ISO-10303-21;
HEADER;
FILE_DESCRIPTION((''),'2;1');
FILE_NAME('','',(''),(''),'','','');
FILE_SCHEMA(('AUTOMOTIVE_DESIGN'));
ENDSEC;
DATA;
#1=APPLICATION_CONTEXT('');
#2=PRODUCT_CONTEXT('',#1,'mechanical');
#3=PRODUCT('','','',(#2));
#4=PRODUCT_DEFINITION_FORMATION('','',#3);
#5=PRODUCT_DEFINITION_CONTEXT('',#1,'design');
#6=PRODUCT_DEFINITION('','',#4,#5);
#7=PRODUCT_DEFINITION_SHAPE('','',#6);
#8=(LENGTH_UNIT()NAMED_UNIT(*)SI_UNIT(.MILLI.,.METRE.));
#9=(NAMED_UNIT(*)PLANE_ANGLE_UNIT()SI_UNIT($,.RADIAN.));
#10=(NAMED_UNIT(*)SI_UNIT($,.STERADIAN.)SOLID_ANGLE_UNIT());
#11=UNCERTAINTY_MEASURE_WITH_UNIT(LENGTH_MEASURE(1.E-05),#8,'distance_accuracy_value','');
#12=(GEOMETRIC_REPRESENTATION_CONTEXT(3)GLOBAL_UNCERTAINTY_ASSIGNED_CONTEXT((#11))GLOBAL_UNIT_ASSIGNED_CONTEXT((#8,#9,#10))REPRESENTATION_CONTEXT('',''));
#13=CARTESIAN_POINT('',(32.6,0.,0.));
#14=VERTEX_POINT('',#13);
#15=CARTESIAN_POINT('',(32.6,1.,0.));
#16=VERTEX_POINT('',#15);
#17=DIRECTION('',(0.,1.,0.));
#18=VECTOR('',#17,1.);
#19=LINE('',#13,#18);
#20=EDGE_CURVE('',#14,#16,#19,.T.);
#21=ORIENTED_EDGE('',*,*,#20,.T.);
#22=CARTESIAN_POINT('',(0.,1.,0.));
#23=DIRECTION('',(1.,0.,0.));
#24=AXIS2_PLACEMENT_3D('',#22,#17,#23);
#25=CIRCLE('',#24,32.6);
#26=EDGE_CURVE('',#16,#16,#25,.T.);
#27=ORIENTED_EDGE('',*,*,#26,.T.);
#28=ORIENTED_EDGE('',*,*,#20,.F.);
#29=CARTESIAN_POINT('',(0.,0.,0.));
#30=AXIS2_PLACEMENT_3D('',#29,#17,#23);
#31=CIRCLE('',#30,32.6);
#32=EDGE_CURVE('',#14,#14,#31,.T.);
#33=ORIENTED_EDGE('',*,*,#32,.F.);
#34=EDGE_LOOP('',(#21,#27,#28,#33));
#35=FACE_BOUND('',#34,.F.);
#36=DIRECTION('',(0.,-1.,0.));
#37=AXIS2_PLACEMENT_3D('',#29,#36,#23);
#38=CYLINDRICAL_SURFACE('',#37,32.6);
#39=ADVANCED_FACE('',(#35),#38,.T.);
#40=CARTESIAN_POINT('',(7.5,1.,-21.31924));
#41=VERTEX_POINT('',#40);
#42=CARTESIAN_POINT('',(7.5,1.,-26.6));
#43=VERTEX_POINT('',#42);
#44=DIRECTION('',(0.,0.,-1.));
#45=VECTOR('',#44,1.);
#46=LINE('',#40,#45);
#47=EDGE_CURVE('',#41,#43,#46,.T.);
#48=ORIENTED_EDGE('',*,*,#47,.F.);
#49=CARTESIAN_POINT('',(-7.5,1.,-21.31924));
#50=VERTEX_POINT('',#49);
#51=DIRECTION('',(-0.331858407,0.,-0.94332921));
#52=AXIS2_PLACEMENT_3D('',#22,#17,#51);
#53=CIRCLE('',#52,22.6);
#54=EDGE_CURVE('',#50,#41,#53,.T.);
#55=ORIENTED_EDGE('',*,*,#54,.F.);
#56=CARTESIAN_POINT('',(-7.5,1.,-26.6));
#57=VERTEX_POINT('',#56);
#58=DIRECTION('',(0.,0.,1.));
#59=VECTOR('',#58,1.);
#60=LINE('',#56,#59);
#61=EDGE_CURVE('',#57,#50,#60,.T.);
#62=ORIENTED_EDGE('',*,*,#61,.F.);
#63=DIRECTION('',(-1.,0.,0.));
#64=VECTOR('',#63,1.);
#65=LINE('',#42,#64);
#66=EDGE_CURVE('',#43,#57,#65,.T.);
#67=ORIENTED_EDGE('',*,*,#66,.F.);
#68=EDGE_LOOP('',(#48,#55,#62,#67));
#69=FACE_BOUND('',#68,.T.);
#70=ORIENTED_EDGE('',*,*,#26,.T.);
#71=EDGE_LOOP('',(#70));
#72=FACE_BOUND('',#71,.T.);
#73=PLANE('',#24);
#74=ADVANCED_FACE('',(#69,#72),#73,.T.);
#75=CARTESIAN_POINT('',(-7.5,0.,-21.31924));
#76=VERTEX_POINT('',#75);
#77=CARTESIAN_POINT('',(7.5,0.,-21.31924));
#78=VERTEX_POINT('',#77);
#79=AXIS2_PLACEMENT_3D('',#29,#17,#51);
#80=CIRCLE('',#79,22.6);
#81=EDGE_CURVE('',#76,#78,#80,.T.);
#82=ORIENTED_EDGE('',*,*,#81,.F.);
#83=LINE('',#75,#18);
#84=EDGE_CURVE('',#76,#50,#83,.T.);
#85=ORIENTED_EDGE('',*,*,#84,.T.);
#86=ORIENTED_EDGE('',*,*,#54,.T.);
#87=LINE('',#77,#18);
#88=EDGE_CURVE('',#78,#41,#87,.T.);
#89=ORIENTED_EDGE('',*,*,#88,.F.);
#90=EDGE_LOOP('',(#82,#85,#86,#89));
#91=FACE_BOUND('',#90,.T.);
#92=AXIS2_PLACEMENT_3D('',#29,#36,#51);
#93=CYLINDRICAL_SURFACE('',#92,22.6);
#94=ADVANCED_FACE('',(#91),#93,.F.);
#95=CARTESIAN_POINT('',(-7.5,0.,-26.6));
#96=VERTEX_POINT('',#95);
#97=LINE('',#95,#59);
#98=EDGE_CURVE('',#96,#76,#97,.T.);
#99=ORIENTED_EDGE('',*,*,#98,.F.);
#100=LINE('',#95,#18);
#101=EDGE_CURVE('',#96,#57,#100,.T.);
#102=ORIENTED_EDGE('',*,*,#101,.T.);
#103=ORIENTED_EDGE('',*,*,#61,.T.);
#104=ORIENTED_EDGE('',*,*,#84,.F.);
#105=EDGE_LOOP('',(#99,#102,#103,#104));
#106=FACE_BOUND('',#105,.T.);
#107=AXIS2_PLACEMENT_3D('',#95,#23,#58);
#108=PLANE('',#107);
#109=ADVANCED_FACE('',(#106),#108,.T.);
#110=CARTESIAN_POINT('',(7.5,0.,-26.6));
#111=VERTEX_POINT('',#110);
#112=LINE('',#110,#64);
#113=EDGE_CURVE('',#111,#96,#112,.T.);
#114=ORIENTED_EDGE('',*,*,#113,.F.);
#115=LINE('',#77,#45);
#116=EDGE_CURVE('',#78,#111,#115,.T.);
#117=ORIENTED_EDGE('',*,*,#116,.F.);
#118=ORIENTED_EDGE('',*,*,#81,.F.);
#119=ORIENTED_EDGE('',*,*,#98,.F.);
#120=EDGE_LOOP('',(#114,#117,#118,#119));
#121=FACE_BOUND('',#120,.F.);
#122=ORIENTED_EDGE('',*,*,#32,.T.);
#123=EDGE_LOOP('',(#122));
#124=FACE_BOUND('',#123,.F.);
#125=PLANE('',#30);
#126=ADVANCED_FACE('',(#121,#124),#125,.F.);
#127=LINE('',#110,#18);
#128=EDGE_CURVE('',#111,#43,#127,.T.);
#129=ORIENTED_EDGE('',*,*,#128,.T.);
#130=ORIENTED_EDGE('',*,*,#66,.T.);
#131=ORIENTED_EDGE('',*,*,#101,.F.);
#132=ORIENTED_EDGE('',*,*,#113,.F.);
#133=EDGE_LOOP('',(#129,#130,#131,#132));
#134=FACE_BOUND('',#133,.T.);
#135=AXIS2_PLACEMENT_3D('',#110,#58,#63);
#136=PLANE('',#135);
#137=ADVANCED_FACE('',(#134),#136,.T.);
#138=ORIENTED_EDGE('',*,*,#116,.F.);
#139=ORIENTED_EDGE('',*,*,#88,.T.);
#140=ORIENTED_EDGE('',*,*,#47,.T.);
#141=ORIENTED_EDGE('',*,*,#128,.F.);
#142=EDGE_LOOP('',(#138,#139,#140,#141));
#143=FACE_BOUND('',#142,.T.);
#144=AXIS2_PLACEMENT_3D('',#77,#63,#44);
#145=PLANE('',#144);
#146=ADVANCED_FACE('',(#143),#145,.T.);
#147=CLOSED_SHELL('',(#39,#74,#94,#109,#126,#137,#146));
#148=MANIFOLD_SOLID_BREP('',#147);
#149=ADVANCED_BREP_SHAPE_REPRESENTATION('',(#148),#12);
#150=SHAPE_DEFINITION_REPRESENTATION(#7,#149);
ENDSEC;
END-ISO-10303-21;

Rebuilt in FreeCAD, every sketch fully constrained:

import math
import FreeCAD as App
import Part
import Sketcher
from FreeCAD import Vector

doc = App.newDocument("Part")
body = doc.addObject("PartDesign::Body", "Body")

sketch1 = body.newObject("Sketcher::SketchObject", "Sketch")
sketch1.AttachmentSupport = (doc.getObject("XZ_Plane"), [""])
sketch1.MapMode = "FlatFace"
sketch1.addGeometry([
    Part.Circle(Vector(0, 0, 0), Vector(0, 0, 1), 33),
    Part.LineSegment(Vector(-8, -21, 0), Vector(-8, -27, 0)),
    Part.LineSegment(Vector(-8, -27, 0), Vector(8, -27, 0)),
    Part.LineSegment(Vector(8, -27, 0), Vector(8, -21, 0)),
    Part.ArcOfCircle(Part.Circle(Vector(0, 0, 0), Vector(0, 0, 1), 23), math.radians(-71), math.radians(251)),
], False)
sketch1.addConstraint([
    Sketcher.Constraint("Coincident", 1, 2, 2, 1),
    Sketcher.Constraint("Coincident", 2, 2, 3, 1),
    Sketcher.Constraint("Coincident", 3, 2, 4, 1),
    Sketcher.Constraint("Coincident", 4, 2, 1, 1),
    Sketcher.Constraint("Vertical", 1),
    Sketcher.Constraint("Horizontal", 2),
    Sketcher.Constraint("Vertical", 3),
    Sketcher.Constraint("Coincident", 0, 3, -1, 1),
    Sketcher.Constraint("Coincident", 4, 3, -1, 1),
    Sketcher.Constraint("Horizontal", 3, 2, 4, 2),
    Sketcher.Constraint("Diameter", 0, 65.2),
    Sketcher.Constraint("Radius", 4, 22.6),
    Sketcher.Constraint("DistanceX", 2, 1, 2, 2, 15.0),
    Sketcher.Constraint("DistanceY", 1, 2, -1, 1, 26.6),
])
pad1 = body.newObject("PartDesign::Pad", "Pad")
pad1.Profile = sketch1
pad1.Length = 1
pad1.Reversed = True

doc.recompute()
